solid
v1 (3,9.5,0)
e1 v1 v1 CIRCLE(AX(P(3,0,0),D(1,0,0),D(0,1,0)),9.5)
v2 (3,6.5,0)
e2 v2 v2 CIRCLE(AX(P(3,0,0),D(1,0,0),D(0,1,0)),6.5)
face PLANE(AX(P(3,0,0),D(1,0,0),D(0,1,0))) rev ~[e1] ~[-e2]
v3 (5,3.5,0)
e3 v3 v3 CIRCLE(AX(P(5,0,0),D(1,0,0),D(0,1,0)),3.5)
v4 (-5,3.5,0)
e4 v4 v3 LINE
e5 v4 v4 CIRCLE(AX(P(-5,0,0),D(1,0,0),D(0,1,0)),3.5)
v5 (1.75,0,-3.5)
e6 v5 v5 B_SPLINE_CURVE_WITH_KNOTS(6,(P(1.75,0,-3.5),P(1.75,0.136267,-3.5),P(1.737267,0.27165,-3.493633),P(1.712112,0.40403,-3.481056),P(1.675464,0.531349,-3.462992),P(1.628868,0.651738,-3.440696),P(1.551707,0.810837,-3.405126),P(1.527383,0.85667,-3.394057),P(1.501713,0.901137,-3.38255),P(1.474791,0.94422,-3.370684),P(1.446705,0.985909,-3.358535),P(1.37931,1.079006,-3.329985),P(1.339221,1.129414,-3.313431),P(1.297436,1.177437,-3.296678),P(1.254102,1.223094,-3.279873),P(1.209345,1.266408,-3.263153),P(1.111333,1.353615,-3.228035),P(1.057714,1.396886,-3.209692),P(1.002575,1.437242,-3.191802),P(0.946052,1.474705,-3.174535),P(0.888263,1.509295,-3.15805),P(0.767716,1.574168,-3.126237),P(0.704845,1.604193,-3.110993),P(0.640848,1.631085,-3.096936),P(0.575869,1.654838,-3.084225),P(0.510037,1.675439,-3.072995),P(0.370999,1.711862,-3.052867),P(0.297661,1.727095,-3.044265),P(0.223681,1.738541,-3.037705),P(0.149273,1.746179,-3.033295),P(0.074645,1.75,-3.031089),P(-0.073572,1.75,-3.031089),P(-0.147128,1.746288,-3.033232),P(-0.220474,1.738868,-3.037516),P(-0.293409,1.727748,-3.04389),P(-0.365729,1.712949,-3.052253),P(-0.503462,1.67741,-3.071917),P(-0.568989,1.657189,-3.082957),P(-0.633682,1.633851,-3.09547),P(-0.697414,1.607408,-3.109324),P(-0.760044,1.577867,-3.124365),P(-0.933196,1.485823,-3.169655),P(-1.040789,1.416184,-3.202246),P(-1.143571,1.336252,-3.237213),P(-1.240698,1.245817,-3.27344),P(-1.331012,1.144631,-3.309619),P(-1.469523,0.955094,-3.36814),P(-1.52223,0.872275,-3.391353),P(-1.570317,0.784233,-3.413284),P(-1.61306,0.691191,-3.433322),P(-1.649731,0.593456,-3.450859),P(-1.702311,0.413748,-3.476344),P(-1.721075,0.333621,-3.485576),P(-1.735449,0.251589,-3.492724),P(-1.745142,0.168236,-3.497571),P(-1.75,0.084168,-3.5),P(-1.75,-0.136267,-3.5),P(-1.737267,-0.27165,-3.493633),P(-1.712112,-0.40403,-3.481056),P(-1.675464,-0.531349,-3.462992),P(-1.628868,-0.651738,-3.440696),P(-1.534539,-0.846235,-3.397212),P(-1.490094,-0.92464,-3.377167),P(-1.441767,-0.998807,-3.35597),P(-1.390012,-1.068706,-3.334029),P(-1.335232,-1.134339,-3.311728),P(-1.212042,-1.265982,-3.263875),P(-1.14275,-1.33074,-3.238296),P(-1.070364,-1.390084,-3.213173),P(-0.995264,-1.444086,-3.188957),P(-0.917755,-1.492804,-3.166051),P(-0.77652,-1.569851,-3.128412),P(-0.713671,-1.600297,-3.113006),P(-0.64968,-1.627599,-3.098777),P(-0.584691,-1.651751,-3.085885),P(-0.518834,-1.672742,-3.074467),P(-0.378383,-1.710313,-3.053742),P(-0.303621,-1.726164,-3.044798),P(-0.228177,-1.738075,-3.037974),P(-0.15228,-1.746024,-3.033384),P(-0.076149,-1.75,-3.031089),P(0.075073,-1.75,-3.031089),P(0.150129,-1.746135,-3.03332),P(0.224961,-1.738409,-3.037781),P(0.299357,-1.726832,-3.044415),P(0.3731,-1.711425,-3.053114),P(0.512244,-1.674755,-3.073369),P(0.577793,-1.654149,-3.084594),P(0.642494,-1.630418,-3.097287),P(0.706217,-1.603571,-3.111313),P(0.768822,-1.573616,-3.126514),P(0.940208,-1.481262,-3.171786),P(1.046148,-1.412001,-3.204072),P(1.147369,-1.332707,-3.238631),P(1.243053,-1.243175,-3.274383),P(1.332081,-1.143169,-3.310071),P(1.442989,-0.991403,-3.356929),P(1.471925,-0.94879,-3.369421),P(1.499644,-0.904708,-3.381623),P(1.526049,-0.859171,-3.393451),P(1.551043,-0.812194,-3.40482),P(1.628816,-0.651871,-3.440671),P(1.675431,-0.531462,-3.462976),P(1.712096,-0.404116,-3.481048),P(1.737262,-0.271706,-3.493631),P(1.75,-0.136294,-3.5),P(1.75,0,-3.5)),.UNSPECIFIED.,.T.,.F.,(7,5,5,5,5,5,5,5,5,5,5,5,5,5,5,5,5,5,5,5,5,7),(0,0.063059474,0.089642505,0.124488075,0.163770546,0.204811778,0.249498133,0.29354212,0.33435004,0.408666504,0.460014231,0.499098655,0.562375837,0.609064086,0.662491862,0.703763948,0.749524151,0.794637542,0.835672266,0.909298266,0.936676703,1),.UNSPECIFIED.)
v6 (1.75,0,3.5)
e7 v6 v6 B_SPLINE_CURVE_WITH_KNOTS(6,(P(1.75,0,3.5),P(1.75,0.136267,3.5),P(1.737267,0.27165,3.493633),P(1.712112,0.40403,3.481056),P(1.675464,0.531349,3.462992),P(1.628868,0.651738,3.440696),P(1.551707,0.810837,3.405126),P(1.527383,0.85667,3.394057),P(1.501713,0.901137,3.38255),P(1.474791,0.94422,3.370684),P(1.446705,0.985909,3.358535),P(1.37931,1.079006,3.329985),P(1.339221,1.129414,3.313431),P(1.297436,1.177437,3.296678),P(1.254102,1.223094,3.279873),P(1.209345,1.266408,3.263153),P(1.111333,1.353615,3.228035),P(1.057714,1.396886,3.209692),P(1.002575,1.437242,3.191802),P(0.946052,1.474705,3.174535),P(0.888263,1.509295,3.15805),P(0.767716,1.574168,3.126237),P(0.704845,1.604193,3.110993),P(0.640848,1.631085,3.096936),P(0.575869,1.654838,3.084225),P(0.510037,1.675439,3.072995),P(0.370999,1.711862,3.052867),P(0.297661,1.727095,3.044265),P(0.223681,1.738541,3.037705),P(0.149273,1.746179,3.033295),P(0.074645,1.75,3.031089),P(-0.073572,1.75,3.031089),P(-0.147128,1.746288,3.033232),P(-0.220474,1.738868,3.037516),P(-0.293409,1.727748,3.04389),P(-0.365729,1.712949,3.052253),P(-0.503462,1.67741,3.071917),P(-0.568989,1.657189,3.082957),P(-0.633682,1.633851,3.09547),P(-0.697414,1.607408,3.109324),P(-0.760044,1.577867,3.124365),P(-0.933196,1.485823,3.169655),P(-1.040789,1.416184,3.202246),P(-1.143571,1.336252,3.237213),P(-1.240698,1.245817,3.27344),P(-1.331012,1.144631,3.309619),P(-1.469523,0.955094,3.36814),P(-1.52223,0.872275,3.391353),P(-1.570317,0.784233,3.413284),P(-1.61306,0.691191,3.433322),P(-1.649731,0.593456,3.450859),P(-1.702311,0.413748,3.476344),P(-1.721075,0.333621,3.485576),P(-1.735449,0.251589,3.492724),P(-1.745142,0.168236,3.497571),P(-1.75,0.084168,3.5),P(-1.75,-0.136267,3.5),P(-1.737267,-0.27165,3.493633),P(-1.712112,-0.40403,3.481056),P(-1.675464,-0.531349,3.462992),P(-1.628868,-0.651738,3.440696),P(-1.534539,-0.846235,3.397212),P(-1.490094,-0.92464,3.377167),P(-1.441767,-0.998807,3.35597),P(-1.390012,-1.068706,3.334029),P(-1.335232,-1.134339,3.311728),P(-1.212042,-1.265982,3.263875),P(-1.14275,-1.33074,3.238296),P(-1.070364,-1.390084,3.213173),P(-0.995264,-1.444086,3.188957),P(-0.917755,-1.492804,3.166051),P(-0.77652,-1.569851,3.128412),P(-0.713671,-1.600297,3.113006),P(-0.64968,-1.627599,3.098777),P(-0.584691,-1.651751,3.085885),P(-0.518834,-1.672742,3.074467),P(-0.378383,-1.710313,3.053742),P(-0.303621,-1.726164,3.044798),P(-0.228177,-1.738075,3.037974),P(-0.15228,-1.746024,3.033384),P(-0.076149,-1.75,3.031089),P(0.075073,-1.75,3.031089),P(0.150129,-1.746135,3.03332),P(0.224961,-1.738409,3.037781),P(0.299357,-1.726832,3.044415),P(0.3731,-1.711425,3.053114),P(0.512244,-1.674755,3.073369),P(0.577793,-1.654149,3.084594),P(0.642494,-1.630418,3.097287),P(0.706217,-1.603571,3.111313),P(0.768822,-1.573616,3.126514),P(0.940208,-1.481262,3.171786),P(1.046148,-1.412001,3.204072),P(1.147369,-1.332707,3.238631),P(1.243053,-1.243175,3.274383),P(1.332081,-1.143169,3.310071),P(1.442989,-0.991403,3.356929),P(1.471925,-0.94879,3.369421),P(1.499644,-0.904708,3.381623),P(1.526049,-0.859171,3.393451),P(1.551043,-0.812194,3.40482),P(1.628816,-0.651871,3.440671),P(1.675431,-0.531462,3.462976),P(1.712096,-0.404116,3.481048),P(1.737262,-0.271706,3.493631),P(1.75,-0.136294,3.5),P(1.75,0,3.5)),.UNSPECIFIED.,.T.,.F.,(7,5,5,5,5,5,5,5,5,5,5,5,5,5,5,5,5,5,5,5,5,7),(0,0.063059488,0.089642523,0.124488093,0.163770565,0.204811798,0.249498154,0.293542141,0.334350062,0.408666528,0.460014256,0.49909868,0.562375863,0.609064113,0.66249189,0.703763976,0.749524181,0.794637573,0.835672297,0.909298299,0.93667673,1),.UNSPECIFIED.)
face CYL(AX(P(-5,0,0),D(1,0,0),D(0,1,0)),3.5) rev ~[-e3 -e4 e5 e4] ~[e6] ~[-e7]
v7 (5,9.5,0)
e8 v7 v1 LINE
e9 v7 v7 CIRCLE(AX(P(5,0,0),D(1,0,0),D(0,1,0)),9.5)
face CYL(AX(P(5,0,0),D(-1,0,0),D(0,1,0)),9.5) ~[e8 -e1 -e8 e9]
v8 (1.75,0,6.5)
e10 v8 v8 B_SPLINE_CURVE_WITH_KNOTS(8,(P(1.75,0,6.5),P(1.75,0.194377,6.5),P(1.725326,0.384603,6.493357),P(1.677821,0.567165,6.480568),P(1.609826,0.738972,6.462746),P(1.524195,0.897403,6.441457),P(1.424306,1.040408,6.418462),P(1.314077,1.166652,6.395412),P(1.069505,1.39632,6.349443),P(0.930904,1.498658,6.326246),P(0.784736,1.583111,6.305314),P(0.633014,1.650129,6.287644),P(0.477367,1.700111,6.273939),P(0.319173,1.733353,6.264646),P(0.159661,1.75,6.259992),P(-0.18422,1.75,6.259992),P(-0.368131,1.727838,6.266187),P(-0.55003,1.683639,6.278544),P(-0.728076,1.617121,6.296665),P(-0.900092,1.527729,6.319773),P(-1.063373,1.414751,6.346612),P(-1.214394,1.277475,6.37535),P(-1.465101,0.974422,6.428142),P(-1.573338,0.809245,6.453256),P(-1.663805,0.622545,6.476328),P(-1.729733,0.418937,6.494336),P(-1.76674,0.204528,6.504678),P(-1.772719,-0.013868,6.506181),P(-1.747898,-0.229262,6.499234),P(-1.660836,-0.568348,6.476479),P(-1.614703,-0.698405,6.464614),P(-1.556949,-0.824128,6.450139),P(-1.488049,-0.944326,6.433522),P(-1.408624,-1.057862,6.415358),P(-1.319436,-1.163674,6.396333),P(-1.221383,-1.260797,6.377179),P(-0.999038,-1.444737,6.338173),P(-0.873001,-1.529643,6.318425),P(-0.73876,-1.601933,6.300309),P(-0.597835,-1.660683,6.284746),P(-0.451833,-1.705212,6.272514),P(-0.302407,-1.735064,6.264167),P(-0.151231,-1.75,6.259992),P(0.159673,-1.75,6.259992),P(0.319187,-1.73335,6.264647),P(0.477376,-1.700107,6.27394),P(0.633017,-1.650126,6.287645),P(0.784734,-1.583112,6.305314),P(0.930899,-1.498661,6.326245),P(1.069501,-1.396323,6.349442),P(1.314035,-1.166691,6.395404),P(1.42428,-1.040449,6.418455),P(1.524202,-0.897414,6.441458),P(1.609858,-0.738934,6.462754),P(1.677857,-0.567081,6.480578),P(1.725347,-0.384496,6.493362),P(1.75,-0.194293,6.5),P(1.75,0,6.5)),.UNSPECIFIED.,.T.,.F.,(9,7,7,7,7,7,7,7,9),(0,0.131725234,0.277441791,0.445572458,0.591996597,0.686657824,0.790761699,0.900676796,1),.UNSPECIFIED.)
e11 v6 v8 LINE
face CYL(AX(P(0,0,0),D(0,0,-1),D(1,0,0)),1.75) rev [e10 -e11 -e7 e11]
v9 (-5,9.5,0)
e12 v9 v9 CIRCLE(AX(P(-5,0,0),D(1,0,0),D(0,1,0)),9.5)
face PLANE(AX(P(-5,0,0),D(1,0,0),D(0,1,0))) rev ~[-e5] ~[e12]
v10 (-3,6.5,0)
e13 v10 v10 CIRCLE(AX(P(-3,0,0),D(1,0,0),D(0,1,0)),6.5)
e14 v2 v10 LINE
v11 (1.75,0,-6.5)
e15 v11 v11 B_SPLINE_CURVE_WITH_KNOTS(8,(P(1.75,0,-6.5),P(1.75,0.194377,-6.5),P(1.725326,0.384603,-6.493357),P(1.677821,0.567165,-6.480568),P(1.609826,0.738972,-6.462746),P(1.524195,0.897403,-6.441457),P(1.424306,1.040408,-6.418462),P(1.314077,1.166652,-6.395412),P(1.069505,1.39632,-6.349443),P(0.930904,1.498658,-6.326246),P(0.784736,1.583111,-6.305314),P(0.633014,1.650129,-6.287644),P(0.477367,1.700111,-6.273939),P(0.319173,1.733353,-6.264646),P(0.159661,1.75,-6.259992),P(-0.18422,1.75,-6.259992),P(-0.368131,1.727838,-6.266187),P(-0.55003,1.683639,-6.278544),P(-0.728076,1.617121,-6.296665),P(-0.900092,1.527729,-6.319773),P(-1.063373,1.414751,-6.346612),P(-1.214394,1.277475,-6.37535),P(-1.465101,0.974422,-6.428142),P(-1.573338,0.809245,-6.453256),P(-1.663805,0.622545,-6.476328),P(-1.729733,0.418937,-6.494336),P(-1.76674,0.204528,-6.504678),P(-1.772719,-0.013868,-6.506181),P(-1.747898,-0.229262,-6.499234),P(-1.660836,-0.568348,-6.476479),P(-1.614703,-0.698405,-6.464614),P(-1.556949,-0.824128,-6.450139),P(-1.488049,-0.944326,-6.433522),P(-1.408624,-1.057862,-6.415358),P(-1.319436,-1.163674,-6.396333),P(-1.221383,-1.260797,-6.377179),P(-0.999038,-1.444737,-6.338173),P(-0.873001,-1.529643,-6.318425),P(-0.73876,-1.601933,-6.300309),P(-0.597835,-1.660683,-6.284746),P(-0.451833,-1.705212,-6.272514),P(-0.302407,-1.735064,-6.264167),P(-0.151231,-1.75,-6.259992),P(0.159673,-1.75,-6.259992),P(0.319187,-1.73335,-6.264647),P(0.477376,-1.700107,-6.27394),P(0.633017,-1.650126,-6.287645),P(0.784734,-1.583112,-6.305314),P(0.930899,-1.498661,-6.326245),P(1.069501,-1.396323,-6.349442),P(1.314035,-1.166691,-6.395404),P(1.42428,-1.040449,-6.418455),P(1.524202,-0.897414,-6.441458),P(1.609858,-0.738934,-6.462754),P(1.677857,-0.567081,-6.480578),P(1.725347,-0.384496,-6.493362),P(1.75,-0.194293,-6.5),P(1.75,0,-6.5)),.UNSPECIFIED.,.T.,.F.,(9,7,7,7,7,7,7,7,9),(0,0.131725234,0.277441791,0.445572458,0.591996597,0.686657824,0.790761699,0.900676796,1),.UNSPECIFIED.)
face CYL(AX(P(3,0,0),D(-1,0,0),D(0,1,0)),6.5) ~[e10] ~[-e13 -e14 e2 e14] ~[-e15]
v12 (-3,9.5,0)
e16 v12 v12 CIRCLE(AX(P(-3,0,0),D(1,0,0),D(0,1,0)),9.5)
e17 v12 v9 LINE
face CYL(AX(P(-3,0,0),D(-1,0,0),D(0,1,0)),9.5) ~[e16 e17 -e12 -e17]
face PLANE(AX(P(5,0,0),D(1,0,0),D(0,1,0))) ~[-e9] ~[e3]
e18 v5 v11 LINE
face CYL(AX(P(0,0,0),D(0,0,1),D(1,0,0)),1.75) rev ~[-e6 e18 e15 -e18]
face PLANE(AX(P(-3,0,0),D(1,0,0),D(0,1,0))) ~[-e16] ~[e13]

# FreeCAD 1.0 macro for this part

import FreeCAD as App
import Part
import Sketcher
from FreeCAD import Vector
Q = App.Units.Quantity

doc = App.newDocument("Part")
body = doc.addObject("PartDesign::Body", "Body")

sketch1 = body.newObject("Sketcher::SketchObject", "Sketch")
sketch1.AttachmentSupport = (doc.getObject("XY_Plane"), [""])
sketch1.MapMode = "FlatFace"
sketch1.addGeometry(Part.LineSegment(Vector(-5, 9.5, 0), Vector(-5, 3.5, 0)), False)
sketch1.addGeometry(Part.LineSegment(Vector(-5, 3.5, 0), Vector(5, 3.5, 0)), False)
sketch1.addGeometry(Part.LineSegment(Vector(5, 3.5, 0), Vector(5, 9.5, 0)), False)
sketch1.addGeometry(Part.LineSegment(Vector(5, 9.5, 0), Vector(3, 9.5, 0)), False)
sketch1.addGeometry(Part.LineSegment(Vector(3, 9.5, 0), Vector(3, 6.5, 0)), False)
sketch1.addGeometry(Part.LineSegment(Vector(3, 6.5, 0), Vector(-3, 6.5, 0)), False)
sketch1.addGeometry(Part.LineSegment(Vector(-3, 6.5, 0), Vector(-3, 9.5, 0)), False)
sketch1.addGeometry(Part.LineSegment(Vector(-3, 9.5, 0), Vector(-5, 9.5, 0)), False)
sketch1.addConstraint(Sketcher.Constraint("Coincident", 0, 2, 1, 1))
sketch1.addConstraint(Sketcher.Constraint("Coincident", 1, 2, 2, 1))
sketch1.addConstraint(Sketcher.Constraint("Coincident", 2, 2, 3, 1))
sketch1.addConstraint(Sketcher.Constraint("Coincident", 3, 2, 4, 1))
sketch1.addConstraint(Sketcher.Constraint("Coincident", 4, 2, 5, 1))
sketch1.addConstraint(Sketcher.Constraint("Coincident", 5, 2, 6, 1))
sketch1.addConstraint(Sketcher.Constraint("Coincident", 6, 2, 7, 1))
sketch1.addConstraint(Sketcher.Constraint("Coincident", 7, 2, 0, 1))
sketch1.addConstraint(Sketcher.Constraint("Vertical", 0))
sketch1.addConstraint(Sketcher.Constraint("Horizontal", 1))
sketch1.addConstraint(Sketcher.Constraint("Vertical", 2))
sketch1.addConstraint(Sketcher.Constraint("Horizontal", 3))
sketch1.addConstraint(Sketcher.Constraint("Vertical", 4))
sketch1.addConstraint(Sketcher.Constraint("Horizontal", 5))
sketch1.addConstraint(Sketcher.Constraint("Vertical", 6))
sketch1.addConstraint(Sketcher.Constraint("Horizontal", 7))
sketch1.addConstraint(Sketcher.Constraint("Symmetric", 3, 2, 6, 2, -2))
sketch1.addConstraint(Sketcher.Constraint("Equal", 3, 7))
sketch1.addConstraint(Sketcher.Constraint("Equal", 5, 0))
sketch1.addConstraint(Sketcher.Constraint("DistanceX", 1, 1, 1, 2, Q("10 mm")))
sketch1.addConstraint(Sketcher.Constraint("DistanceX", 3, 2, 3, 1, Q("2 mm")))
sketch1.addConstraint(Sketcher.Constraint("DistanceY", 4, 2, 4, 1, Q("3 mm")))
sketch1.addConstraint(Sketcher.Constraint("DistanceY", -1, 1, 0, 2, Q("3.5 mm")))
revolution = body.newObject("PartDesign::Revolution", "Revolution")
revolution.Profile = sketch1
revolution.ReferenceAxis = (sketch1, ["H_Axis"])
revolution.Angle = 360

sketch2 = body.newObject("Sketcher::SketchObject", "Sketch001")
sketch2.AttachmentSupport = (doc.getObject("XY_Plane"), [""])
sketch2.MapMode = "FlatFace"
sketch2.addGeometry(Part.Circle(Vector(0, 0, 0), Vector(0, 0, 1), 1.75), False)
sketch2.addConstraint(Sketcher.Constraint("Coincident", 0, 3, -1, 1))
sketch2.addConstraint(Sketcher.Constraint("Diameter", 0, Q("3.5 mm")))
pocket1 = body.newObject("PartDesign::Pocket", "Pocket")
pocket1.Profile = sketch2
pocket1.Type = "ThroughAll"
pocket1.Midplane = True

doc.recompute()
